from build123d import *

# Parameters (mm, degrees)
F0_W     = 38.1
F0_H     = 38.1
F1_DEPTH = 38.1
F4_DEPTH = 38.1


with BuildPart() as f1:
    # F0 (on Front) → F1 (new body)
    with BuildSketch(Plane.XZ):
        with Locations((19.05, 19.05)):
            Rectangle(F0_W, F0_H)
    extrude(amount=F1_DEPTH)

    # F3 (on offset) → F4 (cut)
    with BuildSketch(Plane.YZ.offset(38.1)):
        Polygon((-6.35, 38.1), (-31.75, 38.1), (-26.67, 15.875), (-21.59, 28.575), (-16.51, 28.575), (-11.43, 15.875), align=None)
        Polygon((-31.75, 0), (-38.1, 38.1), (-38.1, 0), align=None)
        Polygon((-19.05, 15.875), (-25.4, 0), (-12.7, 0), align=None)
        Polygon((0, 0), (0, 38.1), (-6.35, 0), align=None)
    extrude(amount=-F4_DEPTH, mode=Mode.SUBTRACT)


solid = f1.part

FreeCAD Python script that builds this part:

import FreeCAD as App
import Part
import Sketcher

V = App.Vector
Q = App.Units.Quantity


def add_polygon(sketch, points):
    """Adds a closed chain of lines whose ends are joined by coincident constraints."""
    first, n = sketch.GeometryCount, len(points)
    for a, b in zip(points, points[1:] + points[:1]):
        sketch.addGeometry(Part.LineSegment(App.Vector(*a, 0), App.Vector(*b, 0)), False)
    for i in range(n):
        sketch.addConstraint(Sketcher.Constraint("Coincident", first + i, 2, first + (i + 1) % n, 1))

doc = App.newDocument("Part")
body = doc.addObject("PartDesign::Body", "Body")

# Sketch on XZ plane
sketch1 = doc.addObject("Sketcher::SketchObject", "Sketch")
body.addObject(sketch1)
sketch1.AttachmentSupport = (doc.XZ_Plane, [""])
sketch1.MapMode = "FlatFace"
add_polygon(sketch1, [(0, 38.1), (0, 0), (38.1, 0), (38.1, 38.1)])  # lines 0-3
sketch1.addConstraint(Sketcher.Constraint("Vertical", 0))
sketch1.addConstraint(Sketcher.Constraint("Horizontal", 1))
sketch1.addConstraint(Sketcher.Constraint("Vertical", 2))
sketch1.addConstraint(Sketcher.Constraint("Horizontal", 3))
sketch1.addConstraint(Sketcher.Constraint("Coincident", 0, 2, -1, 1))
sketch1.addConstraint(Sketcher.Constraint("Equal", 3, 0))
sketch1.addConstraint(Sketcher.Constraint("DistanceX", 1, 1, 1, 2, Q("1.5 in")))
pad1 = doc.addObject("PartDesign::Pad", "Pad")
body.addObject(pad1)
pad1.Profile = sketch1
pad1.Length = Q("1.5 in")

# Sketch on YZ plane
sketch2 = doc.addObject("Sketcher::SketchObject", "Sketch001")
body.addObject(sketch2)
sketch2.AttachmentSupport = (doc.YZ_Plane, [""])
sketch2.MapMode = "FlatFace"
sketch2.AttachmentOffset = App.Placement(V(0, 0, 1.5 * 25.4), App.Rotation())
add_polygon(sketch2, [(-6.35, 38.1), (-31.75, 38.1), (-26.67, 15.875), (-21.59, 28.575), (-16.51, 28.575), (-11.43, 15.875)])  # lines 0-5
add_polygon(sketch2, [(-31.75, 0), (-38.1, 38.1), (-38.1, 0)])  # lines 6-8
add_polygon(sketch2, [(-19.05, 15.875), (-25.4, 0), (-12.7, 0)])  # lines 9-11
add_polygon(sketch2, [(0, 0), (0, 38.1), (-6.35, 0)])  # lines 12-14
sketch2.addConstraint(Sketcher.Constraint("Horizontal", 0))
sketch2.addConstraint(Sketcher.Constraint("Horizontal", 3))
sketch2.addConstraint(Sketcher.Constraint("Vertical", 7))
sketch2.addConstraint(Sketcher.Constraint("Horizontal", 8))
sketch2.addConstraint(Sketcher.Constraint("Horizontal", 10))
sketch2.addConstraint(Sketcher.Constraint("Vertical", 12))
sketch2.addConstraint(Sketcher.Constraint("Horizontal", 14))
sketch2.addConstraint(Sketcher.Constraint("Coincident", 14, 2, -1, 1))
sketch2.addConstraint(Sketcher.Constraint("PointOnObject", 7, 2, -1))
sketch2.addConstraint(Sketcher.Constraint("PointOnObject", 9, 2, -1))
sketch2.addConstraint(Sketcher.Constraint("Parallel", 2, 9))
sketch2.addConstraint(Sketcher.Constraint("Parallel", 4, 11))
sketch2.addConstraint(Sketcher.Constraint("Horizontal", 1, 2, 4, 2))
sketch2.addConstraint(Sketcher.Constraint("Horizontal", 5, 2, 6, 2))
sketch2.addConstraint(Sketcher.Constraint("Horizontal", 4, 2, 11, 2))
sketch2.addConstraint(Sketcher.Constraint("Horizontal", 6, 2, 12, 2))
sketch2.addConstraint(Sketcher.Constraint("Vertical", 0, 2, 8, 2))
sketch2.addConstraint(Sketcher.Constraint("Vertical", 5, 2, 13, 2))
sketch2.addConstraint(Sketcher.Constraint("Equal", 8, 14))
sketch2.addConstraint(Sketcher.Constraint("Equal", 2, 4))
sketch2.addConstraint(Sketcher.Constraint("Equal", 1, 5))
sketch2.addConstraint(Sketcher.Constraint("DistanceX", 0, 2, 0, 1, Q("1 in")))
sketch2.addConstraint(Sketcher.Constraint("DistanceX", 3, 1, 3, 2, Q("0.2 in")))
sketch2.addConstraint(Sketcher.Constraint("DistanceX", 10, 1, 10, 2, Q("0.5 in")))
sketch2.addConstraint(Sketcher.Constraint("DistanceY", 7, 2, 7, 1, Q("1.5 in")))
sketch2.addConstraint(Sketcher.Constraint("DistanceX", 9, 2, -1, 1, Q("1 in")))
sketch2.addConstraint(Sketcher.Constraint("DistanceX", 7, 2, 10, 2, Q("1 in")))
sketch2.addConstraint(Sketcher.Constraint("DistanceX", 0, 2, 1, 2, Q("0.2 in")))
sketch2.addConstraint(Sketcher.Constraint("DistanceY", 1, 2, 2, 2, Q("0.5 in")))
pocket1 = doc.addObject("PartDesign::Pocket", "Pocket")
body.addObject(pocket1)
pocket1.Profile = sketch2
pocket1.Length = Q("1.5 in")

doc.recompute()
